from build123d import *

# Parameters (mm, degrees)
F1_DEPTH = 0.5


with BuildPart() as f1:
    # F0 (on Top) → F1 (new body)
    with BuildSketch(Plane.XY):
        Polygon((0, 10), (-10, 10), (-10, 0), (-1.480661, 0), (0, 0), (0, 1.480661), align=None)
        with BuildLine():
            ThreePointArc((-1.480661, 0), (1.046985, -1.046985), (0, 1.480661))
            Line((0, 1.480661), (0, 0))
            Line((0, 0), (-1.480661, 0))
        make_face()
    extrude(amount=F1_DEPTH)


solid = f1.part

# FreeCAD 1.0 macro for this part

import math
import FreeCAD as App
import Part
import Sketcher

V = App.Vector
Q = App.Units.Quantity

doc = App.newDocument("Part")
body = doc.addObject("PartDesign::Body", "Body")

# Sketch on XY plane
sketch1 = body.newObject("Sketcher::SketchObject", "Sketch")
sketch1.AttachmentSupport = (doc.getObject("XY_Plane"), [""])
sketch1.MapMode = "FlatFace"
sketch1.addGeometry([
    Part.LineSegment(V(0, 10, 0), V(-10, 10, 0)),  # 0
    Part.LineSegment(V(-10, 10, 0), V(-10, 0, 0)),  # 1
    Part.LineSegment(V(-10, 0, 0), V(-1.5, 0, 0)),  # 2
    Part.ArcOfCircle(Part.Circle(V(0, 0, 0), V(0, 0, 1), 1.5), math.radians(-180), math.radians(90)),  # 3
    Part.LineSegment(V(0, 1.5, 0), V(0, 10, 0)),  # 4
], False)
sketch1.addConstraint([
    Sketcher.Constraint("Coincident", 0, 2, 1, 1),
    Sketcher.Constraint("Coincident", 1, 2, 2, 1),
    Sketcher.Constraint("Coincident", 2, 2, 3, 1),
    Sketcher.Constraint("Coincident", 3, 2, 4, 1),
    Sketcher.Constraint("Coincident", 4, 2, 0, 1),
    Sketcher.Constraint("Horizontal", 0),
    Sketcher.Constraint("Vertical", 1),
    Sketcher.Constraint("Horizontal", 2),
    Sketcher.Constraint("Vertical", 4),
    Sketcher.Constraint("Coincident", 3, 3, -1, 1),
    Sketcher.Constraint("PointOnObject", 1, 2, -1),
    Sketcher.Constraint("PointOnObject", 3, 2, -2),
    Sketcher.Constraint("Equal", 0, 1),
    Sketcher.Constraint("DistanceX", 0, 2, 0, 1, Q("10 mm")),
    Sketcher.Constraint("Radius", 3, Q("1.480661 mm")),
])
pad1 = body.newObject("PartDesign::Pad", "Pad")
pad1.Profile = sketch1
pad1.Length = 0.5

doc.recompute()
